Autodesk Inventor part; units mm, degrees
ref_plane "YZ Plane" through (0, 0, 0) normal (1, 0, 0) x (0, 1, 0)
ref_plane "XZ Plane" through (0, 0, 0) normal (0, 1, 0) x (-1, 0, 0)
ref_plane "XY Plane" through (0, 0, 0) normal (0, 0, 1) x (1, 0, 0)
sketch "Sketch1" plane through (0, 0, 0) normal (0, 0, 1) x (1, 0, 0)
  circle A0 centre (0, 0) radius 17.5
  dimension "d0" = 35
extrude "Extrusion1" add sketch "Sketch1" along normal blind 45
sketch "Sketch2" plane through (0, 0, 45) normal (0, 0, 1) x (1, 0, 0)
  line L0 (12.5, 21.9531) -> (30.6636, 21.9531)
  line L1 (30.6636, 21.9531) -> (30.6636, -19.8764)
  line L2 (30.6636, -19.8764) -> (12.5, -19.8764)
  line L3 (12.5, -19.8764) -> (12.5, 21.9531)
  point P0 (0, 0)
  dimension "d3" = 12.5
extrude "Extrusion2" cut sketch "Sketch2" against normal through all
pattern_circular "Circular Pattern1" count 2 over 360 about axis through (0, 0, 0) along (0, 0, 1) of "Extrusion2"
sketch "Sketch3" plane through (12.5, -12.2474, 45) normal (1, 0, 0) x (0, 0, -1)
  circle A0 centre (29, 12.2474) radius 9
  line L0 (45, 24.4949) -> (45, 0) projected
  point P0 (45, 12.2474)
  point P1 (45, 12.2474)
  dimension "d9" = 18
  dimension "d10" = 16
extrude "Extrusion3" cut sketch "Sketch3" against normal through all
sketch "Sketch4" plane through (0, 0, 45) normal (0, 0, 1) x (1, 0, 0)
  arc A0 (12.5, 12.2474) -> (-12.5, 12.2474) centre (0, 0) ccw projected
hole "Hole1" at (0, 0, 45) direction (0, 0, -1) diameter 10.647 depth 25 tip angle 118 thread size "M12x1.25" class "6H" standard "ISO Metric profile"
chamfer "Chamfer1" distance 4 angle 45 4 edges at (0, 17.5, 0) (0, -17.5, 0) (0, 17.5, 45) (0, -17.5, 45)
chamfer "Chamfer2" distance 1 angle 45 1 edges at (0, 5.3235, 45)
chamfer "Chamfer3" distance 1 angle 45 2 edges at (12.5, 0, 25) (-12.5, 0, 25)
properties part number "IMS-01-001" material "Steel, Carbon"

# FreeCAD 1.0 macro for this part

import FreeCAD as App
import Part
import Sketcher
from FreeCAD import Vector


def edges_at(feature, points):
    """Names of the edges that pass closest to the given points."""
    edges = feature.Shape.Edges
    near = lambda p: min(range(len(edges)), key=lambda i: edges[i].distToShape(Part.Vertex(*p))[0])
    return sorted({f"Edge{near(p) + 1}" for p in points})


def add_polygon(sketch, points):
    """Adds a closed chain of lines whose ends are joined by coincident constraints."""
    first, n = sketch.GeometryCount, len(points)
    for a, b in zip(points, points[1:] + points[:1]):
        sketch.addGeometry(Part.LineSegment(App.Vector(*a, 0), App.Vector(*b, 0)), False)
    for i in range(n):
        sketch.addConstraint(Sketcher.Constraint("Coincident", first + i, 2, first + (i + 1) % n, 1))

doc = App.newDocument("Part")
body = doc.addObject("PartDesign::Body", "Body")

# Sketch on XY plane
sketch1 = body.newObject("Sketcher::SketchObject", "Sketch")
sketch1.AttachmentSupport = (doc.getObject("XY_Plane"), [""])
sketch1.MapMode = "FlatFace"
sketch1.addGeometry(Part.Circle(Vector(0, 0, 0), Vector(0, 0, 1), 17.5), False)
sketch1.addConstraint([
    Sketcher.Constraint("Coincident", 0, 3, -1, 1),
    Sketcher.Constraint("Diameter", 0, 35.0),
])
pad1 = body.newObject("PartDesign::Pad", "Pad")
pad1.Profile = sketch1
pad1.Length = 45

# Sketch on XY plane
sketch2 = body.newObject("Sketcher::SketchObject", "Sketch001")
sketch2.AttachmentSupport = (doc.getObject("XY_Plane"), [""])
sketch2.MapMode = "FlatFace"
sketch2.AttachmentOffset = App.Placement(Vector(0, 0, 45), App.Rotation())
add_polygon(sketch2, [(30.6636, 21.9531), (12.5, 21.9531), (12.5, -19.8764), (30.6636, -19.8764)])  # lines 0-3
sketch2.addConstraint([
    Sketcher.Constraint("Horizontal", 0),
    Sketcher.Constraint("Vertical", 1),
    Sketcher.Constraint("Horizontal", 2),
    Sketcher.Constraint("Vertical", 3),
    Sketcher.Constraint("DistanceX", -1, 1, 0, 2, 12.5),
    Sketcher.Constraint("DistanceX", 0, 2, 0, 1, 18.1636),
    Sketcher.Constraint("DistanceY", 1, 2, 1, 1, 41.8295),
    Sketcher.Constraint("DistanceY", -1, 1, 0, 2, 21.953),
])
pocket1 = body.newObject("PartDesign::Pocket", "Pocket")
pocket1.Profile = sketch2
pocket1.Type = "ThroughAll"
doc.recompute()

polarpattern = body.newObject("PartDesign::PolarPattern", "PolarPattern")
polarpattern.Originals = [pocket1]
polarpattern.Axis = (doc.getObject("Z_Axis"), [""])
polarpattern.Angle = 360
polarpattern.Occurrences = 2
body.Tip = polarpattern

# Sketch on YZ plane
sketch3 = body.newObject("Sketcher::SketchObject", "Sketch002")
sketch3.AttachmentSupport = (doc.getObject("YZ_Plane"), [""])
sketch3.MapMode = "FlatFace"
sketch3.AttachmentOffset = App.Placement(Vector(0, 0, 12.5), App.Rotation())
sketch3.addGeometry(Part.Circle(Vector(0, 16, 0), Vector(0, 0, 1), 9), False)
sketch3.addConstraint([
    Sketcher.Constraint("PointOnObject", 0, 3, -2),
    Sketcher.Constraint("Diameter", 0, 18.0),
    Sketcher.Constraint("DistanceY", -1, 1, 0, 3, 16.0),
])
pocket2 = body.newObject("PartDesign::Pocket", "Pocket001")
pocket2.Profile = sketch3
pocket2.Type = "ThroughAll"

# Sketch on XY plane
sketch4 = body.newObject("Sketcher::SketchObject", "Sketch003")
sketch4.AttachmentSupport = (doc.getObject("XY_Plane"), [""])
sketch4.MapMode = "FlatFace"
sketch4.AttachmentOffset = App.Placement(Vector(0, 0, 45), App.Rotation())
sketch4.addGeometry(Part.Circle(Vector(0, 0, 0), Vector(0, 0, 1), 5.3235), False)
sketch4.addConstraint([
    Sketcher.Constraint("Coincident", 0, 3, -1, 1),
    Sketcher.Constraint("Diameter", 0, 10.647),
])
doc.recompute()
hole = body.newObject("PartDesign::Hole", "Hole")
hole.Profile = sketch4
hole.ThreadType = "None"
hole.Diameter = 10.647
hole.DepthType = "Dimension"
hole.Depth = 25
hole.DrillPoint = "Angled"
hole.DrillPointAngle = 118
doc.recompute()

chamfer = body.newObject("PartDesign::Chamfer", "Chamfer")
chamfer.Base = (hole, edges_at(hole, [
    (0, 17.5, 0),
    (0, -17.5, 0),
    (0, 17.5, 45),
    (0, -17.5, 45),
]))
chamfer.Size = 4
doc.recompute()

chamfer2 = body.newObject("PartDesign::Chamfer", "Chamfer001")
chamfer2.Base = (chamfer, edges_at(chamfer, [(0, 5.324, 45)]))
chamfer2.Size = 1
doc.recompute()

chamfer3 = body.newObject("PartDesign::Chamfer", "Chamfer002")
chamfer3.Base = (chamfer2, edges_at(chamfer2, [(12.5, 0, 25), (-12.5, 0, 25)]))
chamfer3.Size = 1

doc.recompute()
